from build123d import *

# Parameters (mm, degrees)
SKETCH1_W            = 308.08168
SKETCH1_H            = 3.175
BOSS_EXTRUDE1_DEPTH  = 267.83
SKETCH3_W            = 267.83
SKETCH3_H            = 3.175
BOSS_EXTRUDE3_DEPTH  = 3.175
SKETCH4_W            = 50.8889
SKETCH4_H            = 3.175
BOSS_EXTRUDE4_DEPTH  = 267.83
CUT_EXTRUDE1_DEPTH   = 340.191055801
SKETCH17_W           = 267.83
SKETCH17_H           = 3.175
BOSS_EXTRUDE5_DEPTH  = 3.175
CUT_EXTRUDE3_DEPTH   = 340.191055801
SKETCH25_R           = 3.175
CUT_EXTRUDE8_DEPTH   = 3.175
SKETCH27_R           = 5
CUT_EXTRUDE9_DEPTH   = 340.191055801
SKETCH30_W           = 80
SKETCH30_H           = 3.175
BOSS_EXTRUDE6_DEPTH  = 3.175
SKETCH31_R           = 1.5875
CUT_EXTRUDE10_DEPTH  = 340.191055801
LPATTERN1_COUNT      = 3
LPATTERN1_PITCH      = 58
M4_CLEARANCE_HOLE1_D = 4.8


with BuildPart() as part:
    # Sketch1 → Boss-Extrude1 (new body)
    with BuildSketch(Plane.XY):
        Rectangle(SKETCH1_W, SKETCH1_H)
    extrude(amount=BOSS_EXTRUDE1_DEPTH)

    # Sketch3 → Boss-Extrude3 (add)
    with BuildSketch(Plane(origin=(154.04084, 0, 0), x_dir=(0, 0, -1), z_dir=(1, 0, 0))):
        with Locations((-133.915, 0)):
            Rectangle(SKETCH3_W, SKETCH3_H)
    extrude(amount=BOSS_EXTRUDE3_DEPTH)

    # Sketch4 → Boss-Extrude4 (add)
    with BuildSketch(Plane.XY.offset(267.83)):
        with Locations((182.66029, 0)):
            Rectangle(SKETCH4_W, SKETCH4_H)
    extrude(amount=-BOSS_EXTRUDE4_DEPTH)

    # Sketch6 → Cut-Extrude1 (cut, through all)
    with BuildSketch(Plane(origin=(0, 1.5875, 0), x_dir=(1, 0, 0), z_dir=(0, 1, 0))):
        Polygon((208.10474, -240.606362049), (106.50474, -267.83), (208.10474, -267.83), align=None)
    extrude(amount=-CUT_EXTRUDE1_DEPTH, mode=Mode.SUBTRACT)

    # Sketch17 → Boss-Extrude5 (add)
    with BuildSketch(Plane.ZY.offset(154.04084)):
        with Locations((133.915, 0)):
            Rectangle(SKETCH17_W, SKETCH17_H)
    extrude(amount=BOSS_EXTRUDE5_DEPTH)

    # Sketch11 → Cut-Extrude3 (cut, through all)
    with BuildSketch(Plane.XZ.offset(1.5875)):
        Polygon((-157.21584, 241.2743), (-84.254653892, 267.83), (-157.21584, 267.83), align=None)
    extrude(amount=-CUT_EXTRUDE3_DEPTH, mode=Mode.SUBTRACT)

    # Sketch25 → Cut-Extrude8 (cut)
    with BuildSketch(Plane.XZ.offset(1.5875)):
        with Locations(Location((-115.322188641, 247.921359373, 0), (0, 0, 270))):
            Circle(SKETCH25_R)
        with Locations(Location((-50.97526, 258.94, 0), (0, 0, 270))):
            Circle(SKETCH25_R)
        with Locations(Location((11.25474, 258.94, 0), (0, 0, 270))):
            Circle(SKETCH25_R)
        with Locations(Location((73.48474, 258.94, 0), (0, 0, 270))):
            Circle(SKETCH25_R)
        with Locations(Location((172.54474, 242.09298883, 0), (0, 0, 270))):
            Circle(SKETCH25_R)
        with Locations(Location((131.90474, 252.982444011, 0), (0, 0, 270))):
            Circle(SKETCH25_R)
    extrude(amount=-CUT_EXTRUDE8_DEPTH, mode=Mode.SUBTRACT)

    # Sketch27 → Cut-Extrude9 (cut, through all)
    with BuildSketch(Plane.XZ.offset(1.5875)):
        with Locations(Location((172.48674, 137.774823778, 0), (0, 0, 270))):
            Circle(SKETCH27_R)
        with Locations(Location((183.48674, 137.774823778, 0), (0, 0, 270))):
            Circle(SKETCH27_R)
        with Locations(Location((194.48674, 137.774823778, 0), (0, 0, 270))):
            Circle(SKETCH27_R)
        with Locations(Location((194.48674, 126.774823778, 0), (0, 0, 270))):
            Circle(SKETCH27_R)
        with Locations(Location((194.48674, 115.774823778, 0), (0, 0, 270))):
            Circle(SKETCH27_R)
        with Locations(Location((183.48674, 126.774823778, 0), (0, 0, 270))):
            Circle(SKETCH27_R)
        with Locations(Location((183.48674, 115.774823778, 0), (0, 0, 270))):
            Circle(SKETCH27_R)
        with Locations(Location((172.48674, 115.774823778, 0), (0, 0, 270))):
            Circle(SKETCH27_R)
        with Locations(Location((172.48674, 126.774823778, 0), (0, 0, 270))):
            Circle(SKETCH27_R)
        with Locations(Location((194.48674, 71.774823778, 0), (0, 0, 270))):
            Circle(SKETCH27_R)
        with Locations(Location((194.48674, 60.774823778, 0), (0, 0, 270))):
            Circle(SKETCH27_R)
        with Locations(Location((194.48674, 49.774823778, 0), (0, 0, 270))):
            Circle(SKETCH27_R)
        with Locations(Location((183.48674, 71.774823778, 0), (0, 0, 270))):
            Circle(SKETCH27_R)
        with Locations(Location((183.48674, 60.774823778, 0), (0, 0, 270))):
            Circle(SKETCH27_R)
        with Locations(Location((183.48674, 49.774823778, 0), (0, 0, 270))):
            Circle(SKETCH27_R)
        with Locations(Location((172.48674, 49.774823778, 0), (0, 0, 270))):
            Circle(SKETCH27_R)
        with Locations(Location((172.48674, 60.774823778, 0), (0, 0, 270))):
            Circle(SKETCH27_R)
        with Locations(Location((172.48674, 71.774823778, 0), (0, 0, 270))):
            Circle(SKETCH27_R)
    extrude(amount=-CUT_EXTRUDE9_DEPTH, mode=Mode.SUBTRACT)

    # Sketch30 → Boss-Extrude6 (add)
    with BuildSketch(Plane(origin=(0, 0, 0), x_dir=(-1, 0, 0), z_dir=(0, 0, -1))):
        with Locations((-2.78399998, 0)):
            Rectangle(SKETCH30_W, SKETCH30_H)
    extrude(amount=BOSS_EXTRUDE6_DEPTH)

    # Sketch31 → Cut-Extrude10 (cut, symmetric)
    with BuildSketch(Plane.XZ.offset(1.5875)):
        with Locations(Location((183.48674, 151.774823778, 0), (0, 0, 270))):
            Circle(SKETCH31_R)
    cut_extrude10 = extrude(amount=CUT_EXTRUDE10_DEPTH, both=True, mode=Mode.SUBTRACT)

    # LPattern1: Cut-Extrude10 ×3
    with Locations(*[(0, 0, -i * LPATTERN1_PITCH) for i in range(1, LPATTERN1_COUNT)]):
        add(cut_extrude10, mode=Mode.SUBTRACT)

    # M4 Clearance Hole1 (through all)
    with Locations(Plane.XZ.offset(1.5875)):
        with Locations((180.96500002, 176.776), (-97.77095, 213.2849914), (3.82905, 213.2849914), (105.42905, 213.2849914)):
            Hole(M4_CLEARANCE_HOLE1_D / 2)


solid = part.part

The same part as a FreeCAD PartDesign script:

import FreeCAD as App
import Part
import Sketcher
from FreeCAD import Vector
Q = App.Units.Quantity


def add_polygon(sketch, points):
    """Adds a closed chain of lines whose ends are joined by coincident constraints."""
    first, n = sketch.GeometryCount, len(points)
    for a, b in zip(points, points[1:] + points[:1]):
        sketch.addGeometry(Part.LineSegment(App.Vector(*a, 0), App.Vector(*b, 0)), False)
    for i in range(n):
        sketch.addConstraint(Sketcher.Constraint("Coincident", first + i, 2, first + (i + 1) % n, 1))

doc = App.newDocument("Part")
body = doc.addObject("PartDesign::Body", "Body")

sketch1 = doc.addObject("Sketcher::SketchObject", "Sketch")
body.addObject(sketch1)
sketch1.AttachmentSupport = (doc.XY_Plane, [""])
sketch1.MapMode = "FlatFace"
add_polygon(sketch1, [(-154.04084, 1.5875), (-154.04084, -1.5875), (154.04084, -1.5875), (154.04084, 1.5875)])
sketch1.addConstraint([
    Sketcher.Constraint("Vertical", 0),
    Sketcher.Constraint("Horizontal", 1),
    Sketcher.Constraint("Vertical", 2),
    Sketcher.Constraint("Horizontal", 3),
    Sketcher.Constraint("Symmetric", 0, 2, 2, 2, -1, 1),
    Sketcher.Constraint("DistanceY", 0, 2, 0, 1, Q("3.175 mm")),
    Sketcher.Constraint("DistanceX", 1, 1, 1, 2, Q("308.08168 mm")),
])
pad1 = doc.addObject("PartDesign::Pad", "Pad")
body.addObject(pad1)
pad1.Profile = sketch1
pad1.Length = 267.83

sketch2 = doc.addObject("Sketcher::SketchObject", "Sketch001")
body.addObject(sketch2)
sketch2.AttachmentSupport = (doc.YZ_Plane, [""])
sketch2.MapMode = "FlatFace"
sketch2.AttachmentOffset = App.Placement(Vector(0, 0, 154.04084), App.Rotation())
add_polygon(sketch2, [(1.5875, 267.83), (-1.5875, 267.83), (-1.5875, 0), (1.5875, 0)])
sketch2.addConstraint([
    Sketcher.Constraint("Horizontal", 0),
    Sketcher.Constraint("Vertical", 1),
    Sketcher.Constraint("Horizontal", 2),
    Sketcher.Constraint("Vertical", 3),
    Sketcher.Constraint("Symmetric", 1, 2, 2, 2, -1, 1),
    Sketcher.Constraint("DistanceY", 1, 2, 1, 1, Q("267.83 mm")),
    Sketcher.Constraint("DistanceX", 0, 2, 0, 1, Q("3.175 mm")),
])
pad2 = doc.addObject("PartDesign::Pad", "Pad001")
body.addObject(pad2)
pad2.Profile = sketch2
pad2.Length = 3.175

sketch3 = doc.addObject("Sketcher::SketchObject", "Sketch002")
body.addObject(sketch3)
sketch3.AttachmentSupport = (doc.XY_Plane, [""])
sketch3.MapMode = "FlatFace"
sketch3.AttachmentOffset = App.Placement(Vector(0, 0, 267.83), App.Rotation())
add_polygon(sketch3, [(157.21584, 1.5875), (157.21584, -1.5875), (208.10474, -1.5875), (208.10474, 1.5875)])
sketch3.addConstraint([
    Sketcher.Constraint("Vertical", 0),
    Sketcher.Constraint("Horizontal", 1),
    Sketcher.Constraint("Vertical", 2),
    Sketcher.Constraint("Horizontal", 3),
    Sketcher.Constraint("DistanceY", 0, 2, 0, 1, Q("3.175 mm")),
    Sketcher.Constraint("DistanceX", 1, 1, 1, 2, Q("50.8889 mm")),
    Sketcher.Constraint("DistanceY", 0, 2, -1, 1, Q("1.5875 mm")),
    Sketcher.Constraint("DistanceX", -1, 1, 0, 2, Q("157.21584 mm")),
])
pad3 = doc.addObject("PartDesign::Pad", "Pad002")
body.addObject(pad3)
pad3.Profile = sketch3
pad3.Length = 267.83
pad3.Reversed = True

sketch4 = doc.addObject("Sketcher::SketchObject", "Sketch003")
body.addObject(sketch4)
sketch4.AttachmentSupport = (doc.XZ_Plane, [""])
sketch4.MapMode = "FlatFace"
sketch4.AttachmentOffset = App.Placement(Vector(0, 0, -1.5875), App.Rotation())
add_polygon(sketch4, [(208.10474, 240.606362), (106.50474, 267.83), (208.10474, 267.83)])
sketch4.addConstraint([
    Sketcher.Constraint("Horizontal", 1),
    Sketcher.Constraint("Vertical", 2),
    Sketcher.Constraint("Angle", 0, Q("165 deg")),
    Sketcher.Constraint("DistanceX", 1, 1, 1, 2, Q("101.6 mm")),
    Sketcher.Constraint("DistanceY", -1, 1, 0, 2, Q("267.83 mm")),
    Sketcher.Constraint("DistanceX", -1, 1, 0, 2, Q("106.50474 mm")),
])
pocket1 = doc.addObject("PartDesign::Pocket", "Pocket")
body.addObject(pocket1)
pocket1.Profile = sketch4
pocket1.Type = "ThroughAll"
pocket1.Reversed = True

sketch5 = doc.addObject("Sketcher::SketchObject", "Sketch004")
body.addObject(sketch5)
sketch5.AttachmentSupport = (doc.YZ_Plane, [""])
sketch5.MapMode = "FlatFace"
sketch5.AttachmentOffset = App.Placement(Vector(0, 0, -154.04084), App.Rotation())
add_polygon(sketch5, [(1.5875, 0), (-1.5875, 0), (-1.5875, 267.83), (1.5875, 267.83)])
sketch5.addConstraint([
    Sketcher.Constraint("Horizontal", 0),
    Sketcher.Constraint("Vertical", 1),
    Sketcher.Constraint("Horizontal", 2),
    Sketcher.Constraint("Vertical", 3),
    Sketcher.Constraint("Symmetric", 0, 2, 3, 2, -1, 1),
    Sketcher.Constraint("DistanceY", 1, 1, 1, 2, Q("267.83 mm")),
    Sketcher.Constraint("DistanceX", 0, 2, 0, 1, Q("3.175 mm")),
])
pad4 = doc.addObject("PartDesign::Pad", "Pad003")
body.addObject(pad4)
pad4.Profile = sketch5
pad4.Length = 3.175
pad4.Reversed = True

sketch6 = doc.addObject("Sketcher::SketchObject", "Sketch005")
body.addObject(sketch6)
sketch6.AttachmentSupport = (doc.XZ_Plane, [""])
sketch6.MapMode = "FlatFace"
sketch6.AttachmentOffset = App.Placement(Vector(0, 0, 1.5875), App.Rotation())
add_polygon(sketch6, [(-157.21584, 241.2743), (-84.254654, 267.83), (-157.21584, 267.83)])
sketch6.addConstraint([
    Sketcher.Constraint("Horizontal", 1),
    Sketcher.Constraint("Vertical", 2),
    Sketcher.Constraint("Angle", 0, Q("20 deg")),
    Sketcher.Constraint("DistanceY", -1, 1, 0, 2, Q("267.83 mm")),
    Sketcher.Constraint("DistanceY", 2, 2, 2, 1, Q("26.5557 mm")),
    Sketcher.Constraint("DistanceX", 1, 2, -1, 1, Q("157.21584 mm")),
])
pocket2 = doc.addObject("PartDesign::Pocket", "Pocket001")
body.addObject(pocket2)
pocket2.Profile = sketch6
pocket2.Type = "ThroughAll"

sketch7 = doc.addObject("Sketcher::SketchObject", "Sketch006")
body.addObject(sketch7)
sketch7.AttachmentSupport = (doc.XZ_Plane, [""])
sketch7.MapMode = "FlatFace"
sketch7.AttachmentOffset = App.Placement(Vector(0, 0, 1.5875), App.Rotation())
sketch7.addGeometry([
    Part.Circle(Vector(-115.322189, 247.921359, 0), Vector(0, 0, 1), 3.175),
    Part.Circle(Vector(-50.97526, 258.94, 0), Vector(0, 0, 1), 3.175),
    Part.Circle(Vector(11.25474, 258.94, 0), Vector(0, 0, 1), 3.175),
    Part.Circle(Vector(73.48474, 258.94, 0), Vector(0, 0, 1), 3.175),
    Part.Circle(Vector(172.54474, 242.092989, 0), Vector(0, 0, 1), 3.175),
    Part.Circle(Vector(131.90474, 252.982444, 0), Vector(0, 0, 1), 3.175),
], False)
sketch7.addConstraint([
    Sketcher.Constraint("Equal", 0, 1),
    Sketcher.Constraint("Equal", 1, 2),
    Sketcher.Constraint("Equal", 2, 3),
    Sketcher.Constraint("Equal", 3, 4),
    Sketcher.Constraint("Equal", 4, 5),
    Sketcher.Constraint("Horizontal", 1, 3, 2, 3),
    Sketcher.Constraint("Horizontal", 2, 3, 3, 3),
    Sketcher.Constraint("Diameter", 0, Q("6.35 mm")),
    Sketcher.Constraint("DistanceY", -1, 1, 1, 3, Q("258.94 mm")),
    Sketcher.Constraint("DistanceX", 1, 3, 2, 3, Q("62.23 mm")),
    Sketcher.Constraint("DistanceX", 2, 3, 3, 3, Q("62.23 mm")),
    Sketcher.Constraint("DistanceX", 3, 3, 4, 3, Q("99.06 mm")),
    Sketcher.Constraint("DistanceX", 5, 3, 4, 3, Q("40.64 mm")),
    Sketcher.Constraint("DistanceX", 0, 3, -1, 1, Q("115.322189 mm")),
    Sketcher.Constraint("DistanceY", -1, 1, 0, 3, Q("247.921359 mm")),
    Sketcher.Constraint("DistanceX", 1, 3, -1, 1, Q("50.97526 mm")),
    Sketcher.Constraint("DistanceY", -1, 1, 4, 3, Q("242.092989 mm")),
    Sketcher.Constraint("DistanceY", -1, 1, 5, 3, Q("252.982444 mm")),
])
pocket3 = doc.addObject("PartDesign::Pocket", "Pocket002")
body.addObject(pocket3)
pocket3.Profile = sketch7
pocket3.Length = 3.175

sketch8 = doc.addObject("Sketcher::SketchObject", "Sketch007")
body.addObject(sketch8)
sketch8.AttachmentSupport = (doc.XZ_Plane, [""])
sketch8.MapMode = "FlatFace"
sketch8.AttachmentOffset = App.Placement(Vector(0, 0, 1.5875), App.Rotation())
sketch8.addGeometry([
    Part.Circle(Vector(172.48674, 137.774824, 0), Vector(0, 0, 1), 5),
    Part.Circle(Vector(183.48674, 137.774824, 0), Vector(0, 0, 1), 5),
    Part.Circle(Vector(194.48674, 137.774824, 0), Vector(0, 0, 1), 5),
    Part.Circle(Vector(194.48674, 126.774824, 0), Vector(0, 0, 1), 5),
    Part.Circle(Vector(194.48674, 115.774824, 0), Vector(0, 0, 1), 5),
    Part.Circle(Vector(183.48674, 126.774824, 0), Vector(0, 0, 1), 5),
    Part.Circle(Vector(183.48674, 115.774824, 0), Vector(0, 0, 1), 5),
    Part.Circle(Vector(172.48674, 115.774824, 0), Vector(0, 0, 1), 5),
    Part.Circle(Vector(172.48674, 126.774824, 0), Vector(0, 0, 1), 5),
    Part.Circle(Vector(194.48674, 71.774824, 0), Vector(0, 0, 1), 5),
    Part.Circle(Vector(194.48674, 60.774824, 0), Vector(0, 0, 1), 5),
    Part.Circle(Vector(194.48674, 49.774824, 0), Vector(0, 0, 1), 5),
    Part.Circle(Vector(183.48674, 71.774824, 0), Vector(0, 0, 1), 5),
    Part.Circle(Vector(183.48674, 60.774824, 0), Vector(0, 0, 1), 5),
    Part.Circle(Vector(183.48674, 49.774824, 0), Vector(0, 0, 1), 5),
    Part.Circle(Vector(172.48674, 49.774824, 0), Vector(0, 0, 1), 5),
    Part.Circle(Vector(172.48674, 60.774824, 0), Vector(0, 0, 1), 5),
    Part.Circle(Vector(172.48674, 71.774824, 0), Vector(0, 0, 1), 5),
], False)
sketch8.addConstraint([
    Sketcher.Constraint("Equal", 0, 1),
    Sketcher.Constraint("Equal", 1, 2),
    Sketcher.Constraint("Equal", 2, 3),
    Sketcher.Constraint("Equal", 3, 4),
    Sketcher.Constraint("Equal", 4, 5),
    Sketcher.Constraint("Equal", 5, 6),
    Sketcher.Constraint("Equal", 6, 7),
    Sketcher.Constraint("Equal", 7, 8),
    Sketcher.Constraint("Equal", 8, 9),
    Sketcher.Constraint("Equal", 9, 10),
    Sketcher.Constraint("Equal", 10, 11),
    Sketcher.Constraint("Equal", 11, 12),
    Sketcher.Constraint("Equal", 12, 13),
    Sketcher.Constraint("Equal", 13, 14),
    Sketcher.Constraint("Equal", 14, 15),
    Sketcher.Constraint("Equal", 15, 16),
    Sketcher.Constraint("Equal", 16, 17),
    Sketcher.Constraint("Horizontal", 0, 3, 1, 3),
    Sketcher.Constraint("Horizontal", 1, 3, 2, 3),
    Sketcher.Constraint("Horizontal", 3, 3, 5, 3),
    Sketcher.Constraint("Horizontal", 4, 3, 6, 3),
    Sketcher.Constraint("Horizontal", 6, 3, 7, 3),
    Sketcher.Constraint("Horizontal", 5, 3, 8, 3),
    Sketcher.Constraint("Horizontal", 9, 3, 12, 3),
    Sketcher.Constraint("Horizontal", 10, 3, 13, 3),
    Sketcher.Constraint("Horizontal", 11, 3, 14, 3),
    Sketcher.Constraint("Horizontal", 14, 3, 15, 3),
    Sketcher.Constraint("Horizontal", 13, 3, 16, 3),
    Sketcher.Constraint("Horizontal", 12, 3, 17, 3),
    Sketcher.Constraint("Vertical", 2, 3, 3, 3),
    Sketcher.Constraint("Vertical", 3, 3, 4, 3),
    Sketcher.Constraint("Vertical", 1, 3, 5, 3),
    Sketcher.Constraint("Vertical", 5, 3, 6, 3),
    Sketcher.Constraint("Vertical", 0, 3, 7, 3),
    Sketcher.Constraint("Vertical", 7, 3, 8, 3),
    Sketcher.Constraint("Vertical", 4, 3, 9, 3),
    Sketcher.Constraint("Vertical", 9, 3, 10, 3),
    Sketcher.Constraint("Vertical", 10, 3, 11, 3),
    Sketcher.Constraint("Vertical", 6, 3, 12, 3),
    Sketcher.Constraint("Vertical", 12, 3, 13, 3),
    Sketcher.Constraint("Vertical", 13, 3, 14, 3),
    Sketcher.Constraint("Vertical", 8, 3, 15, 3),
    Sketcher.Constraint("Vertical", 15, 3, 16, 3),
    Sketcher.Constraint("Vertical", 16, 3, 17, 3),
    Sketcher.Constraint("Diameter", 0, Q("10 mm")),
    Sketcher.Constraint("DistanceX", 0, 3, 1, 3, Q("11 mm")),
    Sketcher.Constraint("DistanceX", 1, 3, 2, 3, Q("11 mm")),
    Sketcher.Constraint("DistanceY", 3, 3, 2, 3, Q("11 mm")),
    Sketcher.Constraint("DistanceY", 4, 3, 3, 3, Q("11 mm")),
    Sketcher.Constraint("DistanceY", 9, 3, 4, 3, Q("44 mm")),
    Sketcher.Constraint("DistanceY", 10, 3, 9, 3, Q("11 mm")),
    Sketcher.Constraint("DistanceY", 11, 3, 10, 3, Q("11 mm")),
    Sketcher.Constraint("DistanceX", -1, 1, 0, 3, Q("172.48674 mm")),
    Sketcher.Constraint("DistanceY", -1, 1, 0, 3, Q("137.774824 mm")),
])
pocket4 = doc.addObject("PartDesign::Pocket", "Pocket003")
body.addObject(pocket4)
pocket4.Profile = sketch8
pocket4.Type = "ThroughAll"

sketch9 = doc.addObject("Sketcher::SketchObject", "Sketch008")
body.addObject(sketch9)
sketch9.AttachmentSupport = (doc.XY_Plane, [""])
sketch9.MapMode = "FlatFace"
add_polygon(sketch9, [(42.784, 1.5875), (42.784, -1.5875), (-37.216, -1.5875), (-37.216, 1.5875)])
sketch9.addConstraint([
    Sketcher.Constraint("Vertical", 0),
    Sketcher.Constraint("Horizontal", 1),
    Sketcher.Constraint("Vertical", 2),
    Sketcher.Constraint("Horizontal", 3),
    Sketcher.Constraint("DistanceX", 1, 2, 1, 1, Q("80 mm")),
    Sketcher.Constraint("DistanceY", 0, 2, 0, 1, Q("3.175 mm")),
    Sketcher.Constraint("DistanceX", -1, 1, 0, 2, Q("42.784 mm")),
    Sketcher.Constraint("DistanceY", 0, 2, -1, 1, Q("1.5875 mm")),
])
pad5 = doc.addObject("PartDesign::Pad", "Pad004")
body.addObject(pad5)
pad5.Profile = sketch9
pad5.Length = 3.175
pad5.Reversed = True

sketch10 = doc.addObject("Sketcher::SketchObject", "Sketch009")
body.addObject(sketch10)
sketch10.AttachmentSupport = (doc.XZ_Plane, [""])
sketch10.MapMode = "FlatFace"
sketch10.AttachmentOffset = App.Placement(Vector(0, 0, 1.5875), App.Rotation())
sketch10.addGeometry(Part.Circle(Vector(183.48674, 151.774824, 0), Vector(0, 0, 1), 1.5875), False)
sketch10.addConstraint([
    Sketcher.Constraint("Diameter", 0, Q("3.175 mm")),
    Sketcher.Constraint("DistanceX", -1, 1, 0, 3, Q("183.48674 mm")),
    Sketcher.Constraint("DistanceY", -1, 1, 0, 3, Q("151.774824 mm")),
])
pocket5 = doc.addObject("PartDesign::Pocket", "Pocket004")
body.addObject(pocket5)
pocket5.Profile = sketch10
pocket5.Length = 680.382112
pocket5.Midplane = True
doc.recompute()

linearpattern = doc.addObject("PartDesign::LinearPattern", "LinearPattern")
body.addObject(linearpattern)
linearpattern.Originals = [pocket5]
linearpattern.Direction = (doc.Z_Axis, [""])
linearpattern.Mode = "offset"
linearpattern.Offset = 58
linearpattern.Occurrences = 3
linearpattern.Reversed = True
body.Tip = linearpattern

sketch11 = doc.addObject("Sketcher::SketchObject", "Sketch010")
body.addObject(sketch11)
sketch11.AttachmentSupport = (doc.XZ_Plane, [""])
sketch11.MapMode = "FlatFace"
sketch11.AttachmentOffset = App.Placement(Vector(0, 0, 1.5875), App.Rotation())
sketch11.addGeometry([
    Part.Circle(Vector(180.965, 176.776, 0), Vector(0, 0, 1), 2.4),
    Part.Circle(Vector(-97.77095, 213.284991, 0), Vector(0, 0, 1), 2.4),
    Part.Circle(Vector(3.82905, 213.284991, 0), Vector(0, 0, 1), 2.4),
    Part.Circle(Vector(105.42905, 213.284991, 0), Vector(0, 0, 1), 2.4),
], False)
sketch11.addConstraint([
    Sketcher.Constraint("Equal", 0, 1),
    Sketcher.Constraint("Equal", 1, 2),
    Sketcher.Constraint("Equal", 2, 3),
    Sketcher.Constraint("Horizontal", 1, 3, 2, 3),
    Sketcher.Constraint("Horizontal", 2, 3, 3, 3),
    Sketcher.Constraint("Diameter", 0, Q("4.8 mm")),
    Sketcher.Constraint("DistanceX", 1, 3, 2, 3, Q("101.6 mm")),
    Sketcher.Constraint("DistanceX", 2, 3, 3, 3, Q("101.6 mm")),
    Sketcher.Constraint("DistanceX", -1, 1, 0, 3, Q("180.965 mm")),
    Sketcher.Constraint("DistanceY", -1, 1, 0, 3, Q("176.776 mm")),
    Sketcher.Constraint("DistanceX", 1, 3, -1, 1, Q("97.77095 mm")),
    Sketcher.Constraint("DistanceY", -1, 1, 1, 3, Q("213.284991 mm")),
])
doc.recompute()
hole = doc.addObject("PartDesign::Hole", "Hole")
body.addObject(hole)
hole.Profile = sketch11
hole.ThreadType = "None"
hole.Diameter = 4.8
hole.DepthType = "ThroughAll"

doc.recompute()
